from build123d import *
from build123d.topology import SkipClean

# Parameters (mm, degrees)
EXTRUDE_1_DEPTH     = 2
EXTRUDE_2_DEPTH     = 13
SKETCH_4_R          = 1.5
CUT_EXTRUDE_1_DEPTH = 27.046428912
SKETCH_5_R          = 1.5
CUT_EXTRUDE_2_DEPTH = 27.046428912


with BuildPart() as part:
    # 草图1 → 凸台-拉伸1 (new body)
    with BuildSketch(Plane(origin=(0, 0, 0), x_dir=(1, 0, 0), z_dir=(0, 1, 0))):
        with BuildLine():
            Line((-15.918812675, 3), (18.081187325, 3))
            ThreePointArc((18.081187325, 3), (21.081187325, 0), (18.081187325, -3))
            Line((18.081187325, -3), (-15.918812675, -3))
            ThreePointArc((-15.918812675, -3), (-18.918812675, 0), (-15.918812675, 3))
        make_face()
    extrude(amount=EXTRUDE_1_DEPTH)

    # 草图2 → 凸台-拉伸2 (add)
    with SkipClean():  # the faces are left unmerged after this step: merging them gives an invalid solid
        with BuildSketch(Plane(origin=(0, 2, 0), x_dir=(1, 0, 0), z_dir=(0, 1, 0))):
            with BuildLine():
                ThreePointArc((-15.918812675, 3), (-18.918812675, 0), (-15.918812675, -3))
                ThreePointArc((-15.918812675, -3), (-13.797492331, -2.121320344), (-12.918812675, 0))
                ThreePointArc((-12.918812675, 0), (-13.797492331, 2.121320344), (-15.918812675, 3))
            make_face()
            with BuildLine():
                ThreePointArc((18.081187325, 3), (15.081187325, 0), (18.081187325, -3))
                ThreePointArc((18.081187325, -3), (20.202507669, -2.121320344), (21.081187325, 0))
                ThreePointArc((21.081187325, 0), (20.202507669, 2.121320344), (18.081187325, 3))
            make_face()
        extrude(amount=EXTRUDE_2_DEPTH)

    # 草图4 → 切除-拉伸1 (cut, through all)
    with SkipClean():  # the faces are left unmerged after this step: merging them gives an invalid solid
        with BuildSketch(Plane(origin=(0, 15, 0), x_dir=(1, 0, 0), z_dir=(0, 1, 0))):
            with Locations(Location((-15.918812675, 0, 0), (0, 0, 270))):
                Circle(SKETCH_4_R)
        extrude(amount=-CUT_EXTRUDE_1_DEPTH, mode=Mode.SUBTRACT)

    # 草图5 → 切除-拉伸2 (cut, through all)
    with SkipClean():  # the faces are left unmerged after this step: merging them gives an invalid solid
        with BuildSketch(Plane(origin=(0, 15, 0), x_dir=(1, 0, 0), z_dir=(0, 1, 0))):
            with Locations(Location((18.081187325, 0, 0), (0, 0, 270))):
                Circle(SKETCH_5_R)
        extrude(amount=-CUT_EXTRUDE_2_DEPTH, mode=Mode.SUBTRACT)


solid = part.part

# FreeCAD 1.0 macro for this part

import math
import FreeCAD as App
import Part
import Sketcher
from FreeCAD import Vector
Q = App.Units.Quantity

doc = App.newDocument("Part")
body = doc.addObject("PartDesign::Body", "Body")

# Sketch on XZ plane
sketch1 = body.newObject("Sketcher::SketchObject", "Sketch")
sketch1.AttachmentSupport = (doc.getObject("XZ_Plane"), [""])
sketch1.MapMode = "FlatFace"
sketch1.addGeometry(Part.LineSegment(Vector(18.1, -3, 0), Vector(-15.9, -3, 0)), False)
sketch1.addGeometry(Part.ArcOfCircle(Part.Circle(Vector(-15.9, 0, 0), Vector(0, 0, 1), 3), math.radians(90), math.radians(270)), False)
sketch1.addGeometry(Part.LineSegment(Vector(-15.9, 3, 0), Vector(18.1, 3, 0)), False)
sketch1.addGeometry(Part.ArcOfCircle(Part.Circle(Vector(18.1, 0, 0), Vector(0, 0, 1), 3), math.radians(-90), math.radians(90)), False)
sketch1.addConstraint(Sketcher.Constraint("Tangent", 0, 2, 1, 2))
sketch1.addConstraint(Sketcher.Constraint("Tangent", 1, 1, 2, 1))
sketch1.addConstraint(Sketcher.Constraint("Tangent", 2, 2, 3, 2))
sketch1.addConstraint(Sketcher.Constraint("Tangent", 3, 1, 0, 1))
sketch1.addConstraint(Sketcher.Constraint("Horizontal", 0))
sketch1.addConstraint(Sketcher.Constraint("Horizontal", 2))
sketch1.addConstraint(Sketcher.Constraint("PointOnObject", 1, 3, -1))
sketch1.addConstraint(Sketcher.Constraint("Radius", 1, Q("3 mm")))
sketch1.addConstraint(Sketcher.Constraint("DistanceX", 0, 2, 0, 1, Q("34 mm")))
sketch1.addConstraint(Sketcher.Constraint("DistanceX", 1, 3, -1, 1, Q("15.918813 mm")))
pad1 = body.newObject("PartDesign::Pad", "Pad")
pad1.Profile = sketch1
pad1.Length = 2
pad1.Reversed = True

# Sketch on XZ plane
sketch2 = body.newObject("Sketcher::SketchObject", "Sketch001")
sketch2.AttachmentSupport = (doc.getObject("XZ_Plane"), [""])
sketch2.MapMode = "FlatFace"
sketch2.AttachmentOffset = App.Placement(Vector(0, 0, -2), App.Rotation())
sketch2.addGeometry(Part.ArcOfCircle(Part.Circle(Vector(-15.9, 0, 0), Vector(0, 0, 1), 3), math.radians(90), math.radians(270)), False)
sketch2.addGeometry(Part.ArcOfCircle(Part.Circle(Vector(-15.9, 0, 0), Vector(0, 0, 1), 3), math.radians(0), math.radians(90)), False)
sketch2.addGeometry(Part.ArcOfCircle(Part.Circle(Vector(-15.9, 0, 0), Vector(0, 0, 1), 3), math.radians(-90), math.radians(0)), False)
sketch2.addGeometry(Part.ArcOfCircle(Part.Circle(Vector(18.1, 0, 0), Vector(0, 0, 1), 3), math.radians(90), math.radians(270)), False)
sketch2.addGeometry(Part.ArcOfCircle(Part.Circle(Vector(18.1, 0, 0), Vector(0, 0, 1), 3), math.radians(0), math.radians(90)), False)
sketch2.addGeometry(Part.ArcOfCircle(Part.Circle(Vector(18.1, 0, 0), Vector(0, 0, 1), 3), math.radians(-90), math.radians(0)), False)
sketch2.addConstraint(Sketcher.Constraint("Tangent", 0, 1, 1, 2))
sketch2.addConstraint(Sketcher.Constraint("Tangent", 1, 1, 2, 2))
sketch2.addConstraint(Sketcher.Constraint("Tangent", 2, 1, 0, 2))
sketch2.addConstraint(Sketcher.Constraint("Tangent", 3, 1, 4, 2))
sketch2.addConstraint(Sketcher.Constraint("Tangent", 4, 1, 5, 2))
sketch2.addConstraint(Sketcher.Constraint("Tangent", 5, 1, 3, 2))
sketch2.addConstraint(Sketcher.Constraint("Equal", 2, 3))
sketch2.addConstraint(Sketcher.Constraint("Symmetric", 0, 1, 2, 1, -1))
sketch2.addConstraint(Sketcher.Constraint("Symmetric", 3, 1, 5, 1, -1))
sketch2.addConstraint(Sketcher.Constraint("PointOnObject", 1, 1, -1))
sketch2.addConstraint(Sketcher.Constraint("PointOnObject", 4, 1, -1))
sketch2.addConstraint(Sketcher.Constraint("Vertical", 2, 3, 0, 1))
sketch2.addConstraint(Sketcher.Constraint("Vertical", 5, 3, 3, 1))
sketch2.addConstraint(Sketcher.Constraint("Radius", 0, Q("3 mm")))
sketch2.addConstraint(Sketcher.Constraint("DistanceX", 1, 3, 3, 3, Q("34 mm")))
sketch2.addConstraint(Sketcher.Constraint("DistanceX", 0, 3, -1, 1, Q("15.918813 mm")))
pad2 = body.newObject("PartDesign::Pad", "Pad001")
pad2.Profile = sketch2
pad2.Length = 13
pad2.Reversed = True

# Sketch on XZ plane
sketch3 = body.newObject("Sketcher::SketchObject", "Sketch002")
sketch3.AttachmentSupport = (doc.getObject("XZ_Plane"), [""])
sketch3.MapMode = "FlatFace"
sketch3.AttachmentOffset = App.Placement(Vector(0, 0, -15), App.Rotation())
sketch3.addGeometry(Part.Circle(Vector(-15.9, 0, 0), Vector(0, 0, 1), 1.5), False)
sketch3.addConstraint(Sketcher.Constraint("PointOnObject", 0, 3, -1))
sketch3.addConstraint(Sketcher.Constraint("Diameter", 0, Q("3 mm")))
sketch3.addConstraint(Sketcher.Constraint("DistanceX", 0, 3, -1, 1, Q("15.918813 mm")))
pocket1 = body.newObject("PartDesign::Pocket", "Pocket")
pocket1.Profile = sketch3
pocket1.Type = "ThroughAll"
pocket1.Reversed = True

# Sketch on XZ plane
sketch4 = body.newObject("Sketcher::SketchObject", "Sketch003")
sketch4.AttachmentSupport = (doc.getObject("XZ_Plane"), [""])
sketch4.MapMode = "FlatFace"
sketch4.AttachmentOffset = App.Placement(Vector(0, 0, -15), App.Rotation())
sketch4.addGeometry(Part.Circle(Vector(18.1, 0, 0), Vector(0, 0, 1), 1.5), False)
sketch4.addConstraint(Sketcher.Constraint("PointOnObject", 0, 3, -1))
sketch4.addConstraint(Sketcher.Constraint("Diameter", 0, Q("3 mm")))
sketch4.addConstraint(Sketcher.Constraint("DistanceX", -1, 1, 0, 3, Q("18.081187 mm")))
pocket2 = body.newObject("PartDesign::Pocket", "Pocket001")
pocket2.Profile = sketch4
pocket2.Type = "ThroughAll"
pocket2.Reversed = True

doc.recompute()
